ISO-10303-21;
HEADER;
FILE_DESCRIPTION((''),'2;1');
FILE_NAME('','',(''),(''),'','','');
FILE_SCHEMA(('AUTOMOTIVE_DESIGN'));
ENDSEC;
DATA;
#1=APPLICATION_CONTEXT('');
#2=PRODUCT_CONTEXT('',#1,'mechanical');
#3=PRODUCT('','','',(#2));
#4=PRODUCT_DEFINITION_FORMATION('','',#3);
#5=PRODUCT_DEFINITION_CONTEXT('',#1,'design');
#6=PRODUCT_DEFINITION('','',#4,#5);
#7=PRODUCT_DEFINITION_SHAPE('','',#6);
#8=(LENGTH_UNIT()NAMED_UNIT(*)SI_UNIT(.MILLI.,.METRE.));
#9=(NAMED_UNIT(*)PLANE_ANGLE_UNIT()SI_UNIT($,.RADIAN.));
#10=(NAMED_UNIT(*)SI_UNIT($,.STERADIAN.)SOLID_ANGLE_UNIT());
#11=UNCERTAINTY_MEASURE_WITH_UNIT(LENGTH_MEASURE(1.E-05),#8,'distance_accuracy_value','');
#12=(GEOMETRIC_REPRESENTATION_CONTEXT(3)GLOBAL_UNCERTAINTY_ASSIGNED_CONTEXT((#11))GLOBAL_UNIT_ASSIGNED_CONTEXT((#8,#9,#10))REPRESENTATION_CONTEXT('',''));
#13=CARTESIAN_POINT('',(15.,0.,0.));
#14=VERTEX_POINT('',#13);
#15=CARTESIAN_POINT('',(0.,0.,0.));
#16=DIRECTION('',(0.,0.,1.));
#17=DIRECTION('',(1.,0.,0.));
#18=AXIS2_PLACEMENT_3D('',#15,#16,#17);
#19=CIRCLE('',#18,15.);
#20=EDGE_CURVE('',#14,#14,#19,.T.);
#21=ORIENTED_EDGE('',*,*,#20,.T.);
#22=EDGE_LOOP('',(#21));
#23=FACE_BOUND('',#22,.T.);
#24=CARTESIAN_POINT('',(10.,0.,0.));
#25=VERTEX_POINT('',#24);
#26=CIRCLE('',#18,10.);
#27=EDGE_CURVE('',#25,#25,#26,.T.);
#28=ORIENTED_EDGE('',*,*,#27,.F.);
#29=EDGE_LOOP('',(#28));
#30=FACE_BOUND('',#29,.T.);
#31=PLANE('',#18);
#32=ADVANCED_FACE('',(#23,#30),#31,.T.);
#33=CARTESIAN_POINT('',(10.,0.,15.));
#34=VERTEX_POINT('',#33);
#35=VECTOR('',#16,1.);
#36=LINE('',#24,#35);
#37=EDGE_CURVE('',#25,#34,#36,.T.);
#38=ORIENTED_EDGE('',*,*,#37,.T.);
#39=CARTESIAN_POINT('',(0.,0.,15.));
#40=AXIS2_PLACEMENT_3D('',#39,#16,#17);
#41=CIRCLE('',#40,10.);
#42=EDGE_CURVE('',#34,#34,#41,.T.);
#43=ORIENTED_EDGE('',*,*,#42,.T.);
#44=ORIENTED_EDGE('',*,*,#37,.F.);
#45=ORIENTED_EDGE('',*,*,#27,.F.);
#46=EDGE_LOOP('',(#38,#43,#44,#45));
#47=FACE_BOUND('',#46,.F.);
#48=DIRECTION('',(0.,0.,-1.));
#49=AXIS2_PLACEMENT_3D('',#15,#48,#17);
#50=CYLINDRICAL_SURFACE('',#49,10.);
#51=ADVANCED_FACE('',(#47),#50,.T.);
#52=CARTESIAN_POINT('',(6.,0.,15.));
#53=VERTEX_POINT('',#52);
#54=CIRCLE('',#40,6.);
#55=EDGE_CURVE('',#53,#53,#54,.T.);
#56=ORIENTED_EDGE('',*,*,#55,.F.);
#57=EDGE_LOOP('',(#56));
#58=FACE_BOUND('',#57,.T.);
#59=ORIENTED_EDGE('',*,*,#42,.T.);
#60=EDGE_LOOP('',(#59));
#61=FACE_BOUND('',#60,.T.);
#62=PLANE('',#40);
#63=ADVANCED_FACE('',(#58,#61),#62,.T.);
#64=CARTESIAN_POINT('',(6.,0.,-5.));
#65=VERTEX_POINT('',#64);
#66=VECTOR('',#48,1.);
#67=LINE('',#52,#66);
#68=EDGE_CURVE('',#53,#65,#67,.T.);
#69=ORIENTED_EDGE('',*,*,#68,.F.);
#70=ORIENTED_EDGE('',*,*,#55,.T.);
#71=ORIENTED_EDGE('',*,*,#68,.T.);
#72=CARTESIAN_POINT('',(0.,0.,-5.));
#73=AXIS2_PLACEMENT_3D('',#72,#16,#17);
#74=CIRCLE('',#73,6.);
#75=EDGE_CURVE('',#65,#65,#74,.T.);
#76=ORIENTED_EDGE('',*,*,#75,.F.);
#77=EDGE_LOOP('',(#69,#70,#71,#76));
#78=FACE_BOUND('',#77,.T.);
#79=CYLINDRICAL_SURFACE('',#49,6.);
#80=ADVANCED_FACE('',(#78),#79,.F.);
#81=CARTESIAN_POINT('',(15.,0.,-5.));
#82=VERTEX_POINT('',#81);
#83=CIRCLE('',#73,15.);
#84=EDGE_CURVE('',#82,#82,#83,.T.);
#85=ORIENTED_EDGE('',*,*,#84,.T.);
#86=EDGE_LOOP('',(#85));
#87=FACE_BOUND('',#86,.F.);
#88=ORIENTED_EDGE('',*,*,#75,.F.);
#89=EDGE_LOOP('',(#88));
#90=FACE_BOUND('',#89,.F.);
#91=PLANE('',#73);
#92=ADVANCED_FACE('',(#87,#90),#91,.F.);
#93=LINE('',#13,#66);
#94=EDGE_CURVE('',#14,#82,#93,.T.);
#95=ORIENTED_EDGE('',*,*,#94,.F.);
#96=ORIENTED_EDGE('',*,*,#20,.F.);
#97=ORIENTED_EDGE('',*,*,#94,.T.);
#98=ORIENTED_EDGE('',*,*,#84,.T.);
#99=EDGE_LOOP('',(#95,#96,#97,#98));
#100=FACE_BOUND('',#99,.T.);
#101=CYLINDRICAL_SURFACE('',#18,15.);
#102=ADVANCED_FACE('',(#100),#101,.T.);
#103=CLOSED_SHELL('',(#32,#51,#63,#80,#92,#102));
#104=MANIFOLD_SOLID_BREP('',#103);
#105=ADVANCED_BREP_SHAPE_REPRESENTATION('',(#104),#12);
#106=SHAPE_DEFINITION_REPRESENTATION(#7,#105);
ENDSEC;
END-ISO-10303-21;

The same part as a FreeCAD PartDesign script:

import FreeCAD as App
import Part
import Sketcher

V = App.Vector

doc = App.newDocument("Part")
body = doc.addObject("PartDesign::Body", "Body")

sketch1 = doc.addObject("Sketcher::SketchObject", "Sketch")
body.addObject(sketch1)
sketch1.AttachmentSupport = (doc.XY_Plane, [""])
sketch1.MapMode = "FlatFace"
sketch1.addGeometry([
    Part.Circle(V(0, 0, 0), V(0, 0, 1), 15),
    Part.Circle(V(0, 0, 0), V(0, 0, 1), 6),
], False)
sketch1.addConstraint([
    Sketcher.Constraint("Coincident", 0, 3, -1, 1),
    Sketcher.Constraint("Coincident", 1, 3, -1, 1),
    Sketcher.Constraint("Diameter", 0, 30.0),
    Sketcher.Constraint("Diameter", 1, 12.0),
])
pad1 = doc.addObject("PartDesign::Pad", "Pad")
body.addObject(pad1)
pad1.Profile = sketch1
pad1.Length = 5
pad1.Reversed = True

sketch2 = doc.addObject("Sketcher::SketchObject", "Sketch001")
body.addObject(sketch2)
sketch2.AttachmentSupport = (doc.XY_Plane, [""])
sketch2.MapMode = "FlatFace"
sketch2.addGeometry([
    Part.Circle(V(0, 0, 0), V(0, 0, 1), 10),
    Part.Circle(V(0, 0, 0), V(0, 0, 1), 6),
], False)
sketch2.addConstraint([
    Sketcher.Constraint("Coincident", 0, 3, -1, 1),
    Sketcher.Constraint("Coincident", 1, 3, -1, 1),
    Sketcher.Constraint("Diameter", 0, 20.0),
    Sketcher.Constraint("Diameter", 1, 12.0),
])
pad2 = doc.addObject("PartDesign::Pad", "Pad001")
body.addObject(pad2)
pad2.Profile = sketch2
pad2.Length = 15

doc.recompute()
